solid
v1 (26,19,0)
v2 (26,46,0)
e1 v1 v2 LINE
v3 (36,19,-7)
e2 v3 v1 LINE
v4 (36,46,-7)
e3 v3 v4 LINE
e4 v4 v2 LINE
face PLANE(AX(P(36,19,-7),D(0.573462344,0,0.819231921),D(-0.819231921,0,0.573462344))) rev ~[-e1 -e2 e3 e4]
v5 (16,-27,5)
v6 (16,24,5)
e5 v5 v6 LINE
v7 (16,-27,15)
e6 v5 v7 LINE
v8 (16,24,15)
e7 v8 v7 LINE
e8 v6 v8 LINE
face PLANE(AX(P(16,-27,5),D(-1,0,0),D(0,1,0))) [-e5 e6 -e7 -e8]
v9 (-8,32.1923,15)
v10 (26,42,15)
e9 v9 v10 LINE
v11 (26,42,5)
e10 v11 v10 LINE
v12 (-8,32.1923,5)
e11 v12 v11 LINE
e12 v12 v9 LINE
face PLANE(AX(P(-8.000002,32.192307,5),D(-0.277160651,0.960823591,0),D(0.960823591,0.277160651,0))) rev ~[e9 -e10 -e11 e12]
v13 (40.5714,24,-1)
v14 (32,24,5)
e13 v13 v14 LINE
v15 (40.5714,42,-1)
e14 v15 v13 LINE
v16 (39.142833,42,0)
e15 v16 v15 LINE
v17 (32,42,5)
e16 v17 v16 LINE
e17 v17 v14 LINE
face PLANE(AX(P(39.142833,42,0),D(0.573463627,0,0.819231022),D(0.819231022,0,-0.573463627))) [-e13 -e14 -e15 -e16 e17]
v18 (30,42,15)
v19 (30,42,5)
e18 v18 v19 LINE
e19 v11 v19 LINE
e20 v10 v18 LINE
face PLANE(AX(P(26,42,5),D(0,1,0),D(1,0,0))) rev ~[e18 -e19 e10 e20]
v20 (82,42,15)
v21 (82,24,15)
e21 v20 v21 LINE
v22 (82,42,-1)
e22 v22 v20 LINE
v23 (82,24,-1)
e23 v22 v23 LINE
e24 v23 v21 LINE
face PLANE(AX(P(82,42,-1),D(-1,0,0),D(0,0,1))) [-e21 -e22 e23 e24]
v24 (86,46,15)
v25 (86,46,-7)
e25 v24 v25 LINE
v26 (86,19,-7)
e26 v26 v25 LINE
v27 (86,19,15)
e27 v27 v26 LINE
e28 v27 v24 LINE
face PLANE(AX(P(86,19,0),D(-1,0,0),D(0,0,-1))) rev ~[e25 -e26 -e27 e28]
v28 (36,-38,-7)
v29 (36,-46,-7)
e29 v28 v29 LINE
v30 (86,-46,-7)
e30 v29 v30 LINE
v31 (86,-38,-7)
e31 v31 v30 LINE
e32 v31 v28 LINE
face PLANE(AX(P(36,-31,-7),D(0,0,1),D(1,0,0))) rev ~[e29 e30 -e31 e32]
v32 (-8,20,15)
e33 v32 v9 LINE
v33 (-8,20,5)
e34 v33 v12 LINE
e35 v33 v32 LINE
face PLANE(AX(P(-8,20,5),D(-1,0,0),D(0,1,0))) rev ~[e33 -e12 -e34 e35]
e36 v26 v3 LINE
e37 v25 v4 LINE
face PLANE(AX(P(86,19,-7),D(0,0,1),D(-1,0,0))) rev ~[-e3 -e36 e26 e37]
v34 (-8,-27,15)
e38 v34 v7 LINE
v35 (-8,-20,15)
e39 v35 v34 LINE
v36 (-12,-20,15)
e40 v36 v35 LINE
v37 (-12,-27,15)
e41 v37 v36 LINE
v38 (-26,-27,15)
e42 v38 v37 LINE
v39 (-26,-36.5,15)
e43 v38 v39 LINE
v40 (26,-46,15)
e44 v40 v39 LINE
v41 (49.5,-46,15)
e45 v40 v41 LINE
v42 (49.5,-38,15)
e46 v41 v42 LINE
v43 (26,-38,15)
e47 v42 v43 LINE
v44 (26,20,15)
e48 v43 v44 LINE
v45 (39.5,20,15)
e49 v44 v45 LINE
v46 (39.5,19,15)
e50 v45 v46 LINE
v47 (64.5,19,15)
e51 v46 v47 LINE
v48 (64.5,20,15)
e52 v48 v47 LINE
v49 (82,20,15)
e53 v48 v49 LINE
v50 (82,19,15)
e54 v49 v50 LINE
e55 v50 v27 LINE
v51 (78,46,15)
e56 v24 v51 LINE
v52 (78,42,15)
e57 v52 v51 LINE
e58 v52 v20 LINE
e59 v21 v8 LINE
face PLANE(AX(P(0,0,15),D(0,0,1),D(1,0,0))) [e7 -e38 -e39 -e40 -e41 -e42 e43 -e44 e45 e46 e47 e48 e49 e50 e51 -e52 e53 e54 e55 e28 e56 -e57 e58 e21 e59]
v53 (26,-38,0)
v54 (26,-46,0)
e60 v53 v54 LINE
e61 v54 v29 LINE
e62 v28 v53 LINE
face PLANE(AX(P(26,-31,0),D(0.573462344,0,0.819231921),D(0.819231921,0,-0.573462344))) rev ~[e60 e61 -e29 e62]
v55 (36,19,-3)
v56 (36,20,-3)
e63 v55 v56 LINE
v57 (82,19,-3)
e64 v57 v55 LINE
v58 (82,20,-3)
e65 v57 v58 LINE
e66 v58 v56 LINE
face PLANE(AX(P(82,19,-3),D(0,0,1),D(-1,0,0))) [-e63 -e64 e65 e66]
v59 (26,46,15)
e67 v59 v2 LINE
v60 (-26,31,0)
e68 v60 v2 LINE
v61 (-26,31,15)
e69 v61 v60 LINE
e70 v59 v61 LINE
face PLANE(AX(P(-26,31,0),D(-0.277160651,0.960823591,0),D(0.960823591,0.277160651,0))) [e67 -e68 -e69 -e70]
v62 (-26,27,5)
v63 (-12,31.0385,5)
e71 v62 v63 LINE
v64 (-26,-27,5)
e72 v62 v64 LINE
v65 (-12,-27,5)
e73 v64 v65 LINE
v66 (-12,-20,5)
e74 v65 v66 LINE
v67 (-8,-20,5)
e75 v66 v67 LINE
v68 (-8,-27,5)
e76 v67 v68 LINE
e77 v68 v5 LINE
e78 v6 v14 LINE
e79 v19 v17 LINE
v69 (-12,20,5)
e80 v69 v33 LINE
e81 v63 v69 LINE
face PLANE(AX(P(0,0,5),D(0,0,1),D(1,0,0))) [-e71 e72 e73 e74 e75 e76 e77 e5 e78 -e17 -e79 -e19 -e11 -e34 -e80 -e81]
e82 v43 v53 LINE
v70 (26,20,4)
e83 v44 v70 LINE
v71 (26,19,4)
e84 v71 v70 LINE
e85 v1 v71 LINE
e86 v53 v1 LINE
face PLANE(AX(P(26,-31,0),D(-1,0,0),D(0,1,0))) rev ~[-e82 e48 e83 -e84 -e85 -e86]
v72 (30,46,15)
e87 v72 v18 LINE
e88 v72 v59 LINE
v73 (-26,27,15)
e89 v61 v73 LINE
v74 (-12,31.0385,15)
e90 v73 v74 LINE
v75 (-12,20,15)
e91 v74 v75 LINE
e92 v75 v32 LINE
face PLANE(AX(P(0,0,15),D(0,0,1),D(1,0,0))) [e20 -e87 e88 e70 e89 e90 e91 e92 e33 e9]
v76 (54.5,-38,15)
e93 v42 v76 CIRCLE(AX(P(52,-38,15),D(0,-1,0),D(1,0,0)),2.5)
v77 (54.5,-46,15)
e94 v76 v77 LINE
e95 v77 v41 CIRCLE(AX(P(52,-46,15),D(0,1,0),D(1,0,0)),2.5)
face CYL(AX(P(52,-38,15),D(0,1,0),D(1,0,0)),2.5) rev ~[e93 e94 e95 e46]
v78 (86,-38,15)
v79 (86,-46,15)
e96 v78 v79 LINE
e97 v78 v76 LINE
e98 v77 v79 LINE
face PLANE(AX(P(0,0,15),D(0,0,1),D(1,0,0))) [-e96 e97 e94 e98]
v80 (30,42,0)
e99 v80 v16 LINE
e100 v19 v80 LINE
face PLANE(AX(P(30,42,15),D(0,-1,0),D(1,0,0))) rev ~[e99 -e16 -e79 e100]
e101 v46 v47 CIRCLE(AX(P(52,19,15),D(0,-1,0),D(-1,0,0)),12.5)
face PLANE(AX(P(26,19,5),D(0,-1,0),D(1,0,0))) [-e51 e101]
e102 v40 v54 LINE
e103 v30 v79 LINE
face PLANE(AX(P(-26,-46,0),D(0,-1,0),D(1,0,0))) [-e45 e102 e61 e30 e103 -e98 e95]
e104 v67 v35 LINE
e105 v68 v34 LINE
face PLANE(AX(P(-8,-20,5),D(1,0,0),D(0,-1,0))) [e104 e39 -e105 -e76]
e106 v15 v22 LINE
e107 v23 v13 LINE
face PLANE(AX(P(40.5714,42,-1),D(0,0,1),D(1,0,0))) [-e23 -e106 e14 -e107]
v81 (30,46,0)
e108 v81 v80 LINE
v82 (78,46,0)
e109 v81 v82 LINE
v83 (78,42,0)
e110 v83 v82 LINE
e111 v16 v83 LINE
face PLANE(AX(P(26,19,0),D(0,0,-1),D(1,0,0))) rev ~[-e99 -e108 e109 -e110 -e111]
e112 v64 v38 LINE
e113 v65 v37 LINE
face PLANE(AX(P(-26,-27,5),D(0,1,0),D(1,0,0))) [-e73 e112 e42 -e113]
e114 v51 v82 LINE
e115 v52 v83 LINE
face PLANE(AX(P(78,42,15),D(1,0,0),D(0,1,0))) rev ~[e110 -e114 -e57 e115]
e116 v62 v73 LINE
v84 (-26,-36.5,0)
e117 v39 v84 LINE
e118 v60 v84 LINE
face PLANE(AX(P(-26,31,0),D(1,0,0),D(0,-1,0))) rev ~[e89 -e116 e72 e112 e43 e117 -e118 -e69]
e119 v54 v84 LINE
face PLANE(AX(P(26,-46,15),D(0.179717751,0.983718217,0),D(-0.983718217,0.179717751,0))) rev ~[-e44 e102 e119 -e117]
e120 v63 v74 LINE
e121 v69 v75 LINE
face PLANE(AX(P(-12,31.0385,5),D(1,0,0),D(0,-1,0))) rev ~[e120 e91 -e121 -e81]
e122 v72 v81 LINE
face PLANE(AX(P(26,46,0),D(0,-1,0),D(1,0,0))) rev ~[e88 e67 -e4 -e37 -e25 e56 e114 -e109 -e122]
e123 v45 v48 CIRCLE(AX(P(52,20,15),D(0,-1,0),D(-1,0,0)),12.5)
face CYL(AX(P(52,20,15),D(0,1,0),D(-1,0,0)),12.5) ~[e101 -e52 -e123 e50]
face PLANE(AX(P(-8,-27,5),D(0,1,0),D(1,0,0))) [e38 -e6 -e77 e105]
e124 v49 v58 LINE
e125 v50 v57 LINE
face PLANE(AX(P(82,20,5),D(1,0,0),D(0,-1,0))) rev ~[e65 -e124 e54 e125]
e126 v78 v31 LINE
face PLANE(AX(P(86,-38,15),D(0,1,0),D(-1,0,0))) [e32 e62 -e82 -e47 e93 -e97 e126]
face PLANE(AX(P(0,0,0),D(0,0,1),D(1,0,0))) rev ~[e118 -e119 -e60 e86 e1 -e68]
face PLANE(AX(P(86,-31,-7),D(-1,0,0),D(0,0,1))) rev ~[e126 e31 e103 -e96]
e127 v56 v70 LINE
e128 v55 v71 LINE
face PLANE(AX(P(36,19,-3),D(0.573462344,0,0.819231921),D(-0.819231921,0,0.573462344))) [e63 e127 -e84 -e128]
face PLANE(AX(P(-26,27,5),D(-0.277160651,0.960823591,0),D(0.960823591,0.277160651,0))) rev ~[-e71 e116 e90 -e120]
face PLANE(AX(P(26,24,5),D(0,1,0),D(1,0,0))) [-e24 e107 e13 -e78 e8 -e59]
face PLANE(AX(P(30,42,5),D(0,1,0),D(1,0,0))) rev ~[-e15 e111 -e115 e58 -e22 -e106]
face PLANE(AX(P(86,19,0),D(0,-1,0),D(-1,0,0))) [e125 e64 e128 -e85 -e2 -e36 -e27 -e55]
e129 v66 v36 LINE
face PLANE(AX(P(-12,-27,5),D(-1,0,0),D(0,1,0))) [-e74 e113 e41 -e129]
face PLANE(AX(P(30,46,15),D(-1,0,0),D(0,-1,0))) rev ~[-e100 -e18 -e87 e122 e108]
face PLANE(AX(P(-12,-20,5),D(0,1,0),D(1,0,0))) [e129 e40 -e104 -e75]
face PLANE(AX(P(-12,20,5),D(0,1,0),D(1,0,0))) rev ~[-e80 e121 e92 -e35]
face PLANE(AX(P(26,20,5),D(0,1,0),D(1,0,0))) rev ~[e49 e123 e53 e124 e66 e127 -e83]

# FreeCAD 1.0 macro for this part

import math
import FreeCAD as App
import Part
import Sketcher

V = App.Vector
Q = App.Units.Quantity


def add_polygon(sketch, points):
    """Adds a closed chain of lines whose ends are joined by coincident constraints."""
    first, n = sketch.GeometryCount, len(points)
    for a, b in zip(points, points[1:] + points[:1]):
        sketch.addGeometry(Part.LineSegment(App.Vector(*a, 0), App.Vector(*b, 0)), False)
    for i in range(n):
        sketch.addConstraint(Sketcher.Constraint("Coincident", first + i, 2, first + (i + 1) % n, 1))

doc = App.newDocument("Part")
params = doc.addObject("Spreadsheet::Sheet", "Params")
for row, (alias, value) in enumerate([
    ("sketch1_width", "52 mm"),
    ("sketch1_width2", "60 mm"),
    ("sketch1_height", "62 mm"),
    ("sketch1_height2", "50 mm"),
    ("pad1_length", "5 mm"),
    ("sketch2_width", "4 mm"),
    ("sketch2_height", "7 mm"),
    ("sketch2_height2", "1 mm"),
    ("sketch2_width2", "56 mm"),
    ("sketch2_width3", "24 mm"),
    ("pad2_length", "10 mm"),
    ("sketch3_height", "4 mm"),
    ("sketch3_width", "48 mm"),
    ("sketch4_width", "50 mm"),
    ("sketch4_height", "7 mm"),
    ("sketch4_width2", "60 mm"),
    ("pad3_length", "27 mm"),
    ("sketch5_width", "56 mm"),
    ("sketch5_width2", "46 mm"),
    ("sketch5_height", "1 mm"),
    ("sketch5_height2", "8 mm"),
    ("pocket2_length", "1 mm"),
    ("sketch6_radius", "12.5 mm"),
    ("pad4_length", "1 mm"),
    ("sketch7_width", "50 mm"),
    ("sketch7_height", "6 mm"),
    ("pocket3_length", "18 mm"),
    ("sketch8_width", "112 mm"),
    ("sketch8_width2", "52 mm"),
    ("sketch8_width3", "50 mm"),
    ("sketch8_height", "15 mm"),
    ("sketch8_height2", "22 mm"),
    ("pad5_length", "15 mm"),
    ("sketch9_height", "7 mm"),
    ("sketch9_width", "60 mm"),
    ("sketch10_height", "9.5 mm"),
    ("sketch10_width", "52 mm"),
    ("sketch11_diameter", "5 mm"),
], start=1):
    params.set(f"A{row}", alias)
    params.set(f"B{row}", "=" + value)
    params.setAlias(f"B{row}", alias)

body = doc.addObject("PartDesign::Body", "Body")

# Sketch on XY plane
sketch1 = doc.addObject("Sketcher::SketchObject", "Sketch")
body.addObject(sketch1)
sketch1.AttachmentSupport = (doc.XY_Plane, [""])
sketch1.MapMode = "FlatFace"
add_polygon(sketch1, [(-26, 31), (-26, -31), (26, -31), (26, 19), (86, 19), (86, 46), (26, 46)])  # lines 0-6
sketch1.addConstraint(Sketcher.Constraint("Vertical", 0))
sketch1.addConstraint(Sketcher.Constraint("Horizontal", 1))
sketch1.addConstraint(Sketcher.Constraint("Vertical", 2))
sketch1.addConstraint(Sketcher.Constraint("Horizontal", 3))
sketch1.addConstraint(Sketcher.Constraint("Vertical", 4))
sketch1.addConstraint(Sketcher.Constraint("Horizontal", 5))
sketch1.addConstraint(Sketcher.Constraint("Symmetric", 1, 2, 6, 2, -1, 1))
sketch1.addConstraint(Sketcher.Constraint("Vertical", 2, 2, 5, 2))
sketch1.addConstraint(Sketcher.Constraint("DistanceX", 1, 1, 1, 2, Q("52 mm")))
sketch1.addConstraint(Sketcher.Constraint("DistanceX", 3, 1, 3, 2, Q("60 mm")))
sketch1.addConstraint(Sketcher.Constraint("DistanceY", 0, 2, 0, 1, Q("62 mm")))
sketch1.addConstraint(Sketcher.Constraint("DistanceY", 2, 1, 2, 2, Q("50 mm")))
sketch1.addConstraint(Sketcher.Constraint("DistanceY", 6, 2, 5, 2, Q("15 mm")))
sketch1.setExpression("Constraints[15]", "Params.sketch1_width")
sketch1.setExpression("Constraints[16]", "Params.sketch1_width2")
sketch1.setExpression("Constraints[17]", "Params.sketch1_height")
sketch1.setExpression("Constraints[18]", "Params.sketch1_height2")
pad1 = doc.addObject("PartDesign::Pad", "Pad")
body.addObject(pad1)
pad1.Profile = sketch1
pad1.setExpression("Length", "Params.pad1_length")

# Sketch on XY plane
sketch2 = doc.addObject("Sketcher::SketchObject", "Sketch001")
body.addObject(sketch2)
sketch2.AttachmentSupport = (doc.XY_Plane, [""])
sketch2.MapMode = "FlatFace"
sketch2.AttachmentOffset = App.Placement(V(0, 0, 5), App.Rotation())
add_polygon(sketch2, [(-8.000002, 32.192307), (26, 42), (82, 42), (82, 24), (16, 24), (16, -27), (-8, -27), (-8, -20), (-12, -20), (-12, -27), (-26, -27), (-26, -31), (26, -31), (26, 20), (82, 20), (82, 19), (86, 19), (86, 46), (26, 46), (-26, 31), (-26, 27), (-12, 31.0385), (-12, 20), (-8, 20)])  # lines 0-23
sketch2.addConstraint(Sketcher.Constraint("Horizontal", 1))
sketch2.addConstraint(Sketcher.Constraint("Vertical", 2))
sketch2.addConstraint(Sketcher.Constraint("Horizontal", 3))
sketch2.addConstraint(Sketcher.Constraint("Vertical", 4))
sketch2.addConstraint(Sketcher.Constraint("Horizontal", 5))
sketch2.addConstraint(Sketcher.Constraint("Vertical", 6))
sketch2.addConstraint(Sketcher.Constraint("Horizontal", 7))
sketch2.addConstraint(Sketcher.Constraint("Vertical", 8))
sketch2.addConstraint(Sketcher.Constraint("Horizontal", 9))
sketch2.addConstraint(Sketcher.Constraint("Vertical", 10))
sketch2.addConstraint(Sketcher.Constraint("Horizontal", 11))
sketch2.addConstraint(Sketcher.Constraint("Vertical", 12))
sketch2.addConstraint(Sketcher.Constraint("Horizontal", 13))
sketch2.addConstraint(Sketcher.Constraint("Vertical", 14))
sketch2.addConstraint(Sketcher.Constraint("Horizontal", 15))
sketch2.addConstraint(Sketcher.Constraint("Vertical", 16))
sketch2.addConstraint(Sketcher.Constraint("Horizontal", 17))
sketch2.addConstraint(Sketcher.Constraint("Vertical", 19))
sketch2.addConstraint(Sketcher.Constraint("Vertical", 21))
sketch2.addConstraint(Sketcher.Constraint("Horizontal", 22))
sketch2.addConstraint(Sketcher.Constraint("Vertical", 23))
sketch2.addConstraint(Sketcher.Constraint("Symmetric", 11, 2, 18, 2, -1, 1))
sketch2.addConstraint(Sketcher.Constraint("Symmetric", 9, 2, 19, 2, -1))
sketch2.addConstraint(Sketcher.Constraint("Symmetric", 7, 2, 21, 2, -1))
sketch2.addConstraint(Sketcher.Constraint("Parallel", 0, 18))
sketch2.addConstraint(Sketcher.Constraint("Parallel", 18, 20))
sketch2.addConstraint(Sketcher.Constraint("Horizontal", 5, 2, 8, 2))
sketch2.addConstraint(Sketcher.Constraint("Horizontal", 13, 2, 21, 2))
sketch2.addConstraint(Sketcher.Constraint("Vertical", 0, 2, 11, 2))
sketch2.addConstraint(Sketcher.Constraint("Vertical", 2, 2, 13, 2))
sketch2.addConstraint(Sketcher.Constraint("Vertical", 12, 2, 17, 2))
sketch2.addConstraint(Sketcher.Constraint("Vertical", 6, 2, 22, 2))
sketch2.addConstraint(Sketcher.Constraint("Equal", 7, 15))
sketch2.addConstraint(Sketcher.Constraint("Equal", 22, 10))
sketch2.addConstraint(Sketcher.Constraint("Equal", 4, 12))
sketch2.addConstraint(Sketcher.Constraint("DistanceX", 7, 2, 7, 1, Q("4 mm")))
sketch2.addConstraint(Sketcher.Constraint("DistanceY", 6, 1, 6, 2, Q("7 mm")))
sketch2.addConstraint(Sketcher.Constraint("DistanceY", 14, 2, 14, 1, Q("1 mm")))
sketch2.addConstraint(Sketcher.Constraint("DistanceX", 3, 2, 0, 2, Q("10 mm")))
sketch2.addConstraint(Sketcher.Constraint("DistanceY", 6, 2, 12, 2, Q("40 mm")))
sketch2.addConstraint(Sketcher.Constraint("DistanceY", 1, 2, 16, 2, Q("4 mm")))
sketch2.addConstraint(Sketcher.Constraint("DistanceX", 1, 1, 1, 2, Q("56 mm")))
sketch2.addConstraint(Sketcher.Constraint("DistanceX", 5, 2, 5, 1, Q("24 mm")))
sketch2.addConstraint(Sketcher.Constraint("DistanceX", 9, 2, 9, 1, Q("14 mm")))
sketch2.addConstraint(Sketcher.Constraint("DistanceY", 2, 2, 2, 1, Q("18 mm")))
sketch2.setExpression("Constraints[59]", "Params.sketch2_width")
sketch2.setExpression("Constraints[60]", "Params.sketch2_height")
sketch2.setExpression("Constraints[61]", "Params.sketch2_height2")
sketch2.setExpression("Constraints[65]", "Params.sketch2_width2")
sketch2.setExpression("Constraints[66]", "Params.sketch2_width3")
pad2 = doc.addObject("PartDesign::Pad", "Pad001")
body.addObject(pad2)
pad2.Profile = sketch2
pad2.setExpression("Length", "Params.pad2_length")

# Sketch on XY plane
sketch3 = doc.addObject("Sketcher::SketchObject", "Sketch002")
body.addObject(sketch3)
sketch3.AttachmentSupport = (doc.XY_Plane, [""])
sketch3.MapMode = "FlatFace"
sketch3.AttachmentOffset = App.Placement(V(0, 0, 15), App.Rotation())
add_polygon(sketch3, [(78, 46), (30, 46), (30, 42), (78, 42)])  # lines 0-3
sketch3.addConstraint(Sketcher.Constraint("Horizontal", 0))
sketch3.addConstraint(Sketcher.Constraint("Vertical", 1))
sketch3.addConstraint(Sketcher.Constraint("Horizontal", 2))
sketch3.addConstraint(Sketcher.Constraint("Vertical", 3))
sketch3.addConstraint(Sketcher.Constraint("DistanceY", 1, 2, 1, 1, Q("4 mm")))
sketch3.addConstraint(Sketcher.Constraint("DistanceX", 0, 2, 0, 1, Q("48 mm")))
sketch3.addConstraint(Sketcher.Constraint("DistanceX", -1, 1, 0, 2, Q("30 mm")))
sketch3.addConstraint(Sketcher.Constraint("DistanceY", -1, 1, 0, 2, Q("46 mm")))
sketch3.setExpression("Constraints[8]", "Params.sketch3_height")
sketch3.setExpression("Constraints[9]", "Params.sketch3_width")
pocket1 = doc.addObject("PartDesign::Pocket", "Pocket")
body.addObject(pocket1)
pocket1.Profile = sketch3
pocket1.Type = "ThroughAll"

# Sketch on XZ plane
sketch4 = doc.addObject("Sketcher::SketchObject", "Sketch003")
body.addObject(sketch4)
sketch4.AttachmentSupport = (doc.XZ_Plane, [""])
sketch4.MapMode = "FlatFace"
sketch4.AttachmentOffset = App.Placement(V(0, 0, -19), App.Rotation())
add_polygon(sketch4, [(86, 0), (26, 0), (36, -7), (86, -7)])  # lines 0-3
sketch4.addConstraint(Sketcher.Constraint("Horizontal", 0))
sketch4.addConstraint(Sketcher.Constraint("Horizontal", 2))
sketch4.addConstraint(Sketcher.Constraint("Vertical", 3))
sketch4.addConstraint(Sketcher.Constraint("PointOnObject", 0, 2, -1))
sketch4.addConstraint(Sketcher.Constraint("DistanceX", 2, 1, 2, 2, Q("50 mm")))
sketch4.addConstraint(Sketcher.Constraint("DistanceY", 3, 1, 3, 2, Q("7 mm")))
sketch4.addConstraint(Sketcher.Constraint("DistanceX", 0, 2, 0, 1, Q("60 mm")))
sketch4.addConstraint(Sketcher.Constraint("DistanceX", -1, 1, 0, 2, Q("26 mm")))
sketch4.setExpression("Constraints[8]", "Params.sketch4_width")
sketch4.setExpression("Constraints[9]", "Params.sketch4_height")
sketch4.setExpression("Constraints[10]", "Params.sketch4_width2")
pad3 = doc.addObject("PartDesign::Pad", "Pad002")
body.addObject(pad3)
pad3.Profile = sketch4
pad3.setExpression("Length", "Params.pad3_length")
pad3.Reversed = True

# Sketch on XZ plane
sketch5 = doc.addObject("Sketcher::SketchObject", "Sketch004")
body.addObject(sketch5)
sketch5.AttachmentSupport = (doc.XZ_Plane, [""])
sketch5.MapMode = "FlatFace"
sketch5.AttachmentOffset = App.Placement(V(0, 0, -19), App.Rotation())
add_polygon(sketch5, [(82, 5), (26, 5), (26, 4), (36, -3), (82, -3)])  # lines 0-4
sketch5.addConstraint(Sketcher.Constraint("Horizontal", 0))
sketch5.addConstraint(Sketcher.Constraint("Vertical", 1))
sketch5.addConstraint(Sketcher.Constraint("Horizontal", 3))
sketch5.addConstraint(Sketcher.Constraint("Vertical", 4))
sketch5.addConstraint(Sketcher.Constraint("DistanceY", -1, 1, 1, 2, Q("4 mm")))
sketch5.addConstraint(Sketcher.Constraint("DistanceX", 0, 2, 0, 1, Q("56 mm")))
sketch5.addConstraint(Sketcher.Constraint("DistanceX", 3, 1, 3, 2, Q("46 mm")))
sketch5.addConstraint(Sketcher.Constraint("DistanceY", 1, 2, 1, 1, Q("1 mm")))
sketch5.addConstraint(Sketcher.Constraint("DistanceY", 4, 1, 4, 2, Q("8 mm")))
sketch5.addConstraint(Sketcher.Constraint("DistanceX", -1, 1, 0, 2, Q("26 mm")))
sketch5.setExpression("Constraints[10]", "Params.sketch5_width")
sketch5.setExpression("Constraints[11]", "Params.sketch5_width2")
sketch5.setExpression("Constraints[12]", "Params.sketch5_height")
sketch5.setExpression("Constraints[13]", "Params.sketch5_height2")
pocket2 = doc.addObject("PartDesign::Pocket", "Pocket001")
body.addObject(pocket2)
pocket2.Profile = sketch5
pocket2.setExpression("Length", "Params.pocket2_length")

# Sketch on XZ plane
sketch6 = doc.addObject("Sketcher::SketchObject", "Sketch005")
body.addObject(sketch6)
sketch6.AttachmentSupport = (doc.XZ_Plane, [""])
sketch6.MapMode = "FlatFace"
sketch6.AttachmentOffset = App.Placement(V(0, 0, -20), App.Rotation())
sketch6.addGeometry(Part.LineSegment(V(64.5, 15, 0), V(39.5, 15, 0)), False)
sketch6.addGeometry(Part.ArcOfCircle(Part.Circle(V(52, 15, 0), V(0, 0, 1), 12.5), math.radians(180), math.radians(360)), False)
sketch6.addConstraint(Sketcher.Constraint("Coincident", 0, 1, 1, 2))
sketch6.addConstraint(Sketcher.Constraint("Coincident", 1, 1, 0, 2))
sketch6.addConstraint(Sketcher.Constraint("Horizontal", 0))
sketch6.addConstraint(Sketcher.Constraint("Horizontal", 1, 3, 0, 1))
sketch6.addConstraint(Sketcher.Constraint("Radius", 1, Q("12.5 mm")))
sketch6.addConstraint(Sketcher.Constraint("DistanceX", -1, 1, 1, 3, Q("52 mm")))
sketch6.addConstraint(Sketcher.Constraint("DistanceY", -1, 1, 1, 3, Q("15 mm")))
sketch6.setExpression("Constraints[4]", "Params.sketch6_radius")
pad4 = doc.addObject("PartDesign::Pad", "Pad003")
body.addObject(pad4)
pad4.Profile = sketch6
pad4.setExpression("Length", "Params.pad4_length")

# Sketch on XZ plane
sketch7 = doc.addObject("Sketcher::SketchObject", "Sketch006")
body.addObject(sketch7)
sketch7.AttachmentSupport = (doc.XZ_Plane, [""])
sketch7.MapMode = "FlatFace"
sketch7.AttachmentOffset = App.Placement(V(0, 0, -42), App.Rotation())
add_polygon(sketch7, [(40.5714, -1), (32, 5), (82, 5), (82, -1)])  # lines 0-3
sketch7.addConstraint(Sketcher.Constraint("Horizontal", 1))
sketch7.addConstraint(Sketcher.Constraint("Vertical", 2))
sketch7.addConstraint(Sketcher.Constraint("Horizontal", 3))
sketch7.addConstraint(Sketcher.Constraint("DistanceX", 1, 1, 1, 2, Q("50 mm")))
sketch7.addConstraint(Sketcher.Constraint("DistanceY", 2, 2, 2, 1, Q("6 mm")))
sketch7.addConstraint(Sketcher.Constraint("DistanceX", -1, 1, 0, 2, Q("32 mm")))
sketch7.addConstraint(Sketcher.Constraint("DistanceY", -1, 1, 0, 2, Q("5 mm")))
sketch7.addConstraint(Sketcher.Constraint("DistanceX", 3, 2, 3, 1, Q("41.4286 mm")))
sketch7.setExpression("Constraints[7]", "Params.sketch7_width")
sketch7.setExpression("Constraints[8]", "Params.sketch7_height")
pocket3 = doc.addObject("PartDesign::Pocket", "Pocket002")
body.addObject(pocket3)
pocket3.Profile = sketch7
pocket3.setExpression("Length", "Params.pocket3_length")
pocket3.Reversed = True

# Sketch on XZ plane
sketch8 = doc.addObject("Sketcher::SketchObject", "Sketch007")
body.addObject(sketch8)
sketch8.AttachmentSupport = (doc.XZ_Plane, [""])
sketch8.MapMode = "FlatFace"
sketch8.AttachmentOffset = App.Placement(V(0, 0, 31), App.Rotation())
add_polygon(sketch8, [(86, 15), (-26, 15), (-26, 0), (26, 0), (36, -7), (86, -7)])  # lines 0-5
sketch8.addConstraint(Sketcher.Constraint("Horizontal", 0))
sketch8.addConstraint(Sketcher.Constraint("Vertical", 1))
sketch8.addConstraint(Sketcher.Constraint("Horizontal", 2))
sketch8.addConstraint(Sketcher.Constraint("Horizontal", 4))
sketch8.addConstraint(Sketcher.Constraint("Vertical", 5))
sketch8.addConstraint(Sketcher.Constraint("Symmetric", 1, 2, 2, 2, -1, 1))
sketch8.addConstraint(Sketcher.Constraint("DistanceX", 0, 2, 0, 1, Q("112 mm")))
sketch8.addConstraint(Sketcher.Constraint("DistanceX", 2, 1, 2, 2, Q("52 mm")))
sketch8.addConstraint(Sketcher.Constraint("DistanceX", 4, 1, 4, 2, Q("50 mm")))
sketch8.addConstraint(Sketcher.Constraint("DistanceY", 1, 2, 1, 1, Q("15 mm")))
sketch8.addConstraint(Sketcher.Constraint("DistanceY", 5, 1, 5, 2, Q("22 mm")))
sketch8.setExpression("Constraints[12]", "Params.sketch8_width")
sketch8.setExpression("Constraints[13]", "Params.sketch8_width2")
sketch8.setExpression("Constraints[14]", "Params.sketch8_width3")
sketch8.setExpression("Constraints[15]", "Params.sketch8_height")
sketch8.setExpression("Constraints[16]", "Params.sketch8_height2")
pad5 = doc.addObject("PartDesign::Pad", "Pad004")
body.addObject(pad5)
pad5.Profile = sketch8
pad5.setExpression("Length", "Params.pad5_length")

# Sketch on XY plane
sketch9 = doc.addObject("Sketcher::SketchObject", "Sketch008")
body.addObject(sketch9)
sketch9.AttachmentSupport = (doc.XY_Plane, [""])
sketch9.MapMode = "FlatFace"
sketch9.AttachmentOffset = App.Placement(V(0, 0, 15), App.Rotation())
add_polygon(sketch9, [(86, -31), (26, -31), (26, -38), (86, -38)])  # lines 0-3
sketch9.addConstraint(Sketcher.Constraint("Horizontal", 0))
sketch9.addConstraint(Sketcher.Constraint("Vertical", 1))
sketch9.addConstraint(Sketcher.Constraint("Horizontal", 2))
sketch9.addConstraint(Sketcher.Constraint("Vertical", 3))
sketch9.addConstraint(Sketcher.Constraint("DistanceY", 1, 2, 1, 1, Q("7 mm")))
sketch9.addConstraint(Sketcher.Constraint("DistanceX", 0, 2, 0, 1, Q("60 mm")))
sketch9.addConstraint(Sketcher.Constraint("DistanceX", -1, 1, 0, 2, Q("26 mm")))
sketch9.addConstraint(Sketcher.Constraint("DistanceY", 0, 2, -1, 1, Q("31 mm")))
sketch9.setExpression("Constraints[8]", "Params.sketch9_height")
sketch9.setExpression("Constraints[9]", "Params.sketch9_width")
pocket4 = doc.addObject("PartDesign::Pocket", "Pocket003")
body.addObject(pocket4)
pocket4.Profile = sketch9
pocket4.Type = "ThroughAll"

# Sketch on XY plane
sketch10 = doc.addObject("Sketcher::SketchObject", "Sketch009")
body.addObject(sketch10)
sketch10.AttachmentSupport = (doc.XY_Plane, [""])
sketch10.MapMode = "FlatFace"
sketch10.AttachmentOffset = App.Placement(V(0, 0, 15), App.Rotation())
add_polygon(sketch10, [(-26, -36.5), (-26, -46), (26, -46)])  # lines 0-2
sketch10.addConstraint(Sketcher.Constraint("Vertical", 0))
sketch10.addConstraint(Sketcher.Constraint("Horizontal", 1))
sketch10.addConstraint(Sketcher.Constraint("DistanceY", 0, 2, 0, 1, Q("9.5 mm")))
sketch10.addConstraint(Sketcher.Constraint("DistanceX", 1, 1, 1, 2, Q("52 mm")))
sketch10.addConstraint(Sketcher.Constraint("DistanceX", 0, 2, -1, 1, Q("26 mm")))
sketch10.addConstraint(Sketcher.Constraint("DistanceY", 0, 2, -1, 1, Q("46 mm")))
sketch10.setExpression("Constraints[5]", "Params.sketch10_height")
sketch10.setExpression("Constraints[6]", "Params.sketch10_width")
pocket5 = doc.addObject("PartDesign::Pocket", "Pocket004")
body.addObject(pocket5)
pocket5.Profile = sketch10
pocket5.Type = "ThroughAll"

# Sketch on XZ plane
sketch11 = doc.addObject("Sketcher::SketchObject", "Sketch010")
body.addObject(sketch11)
sketch11.AttachmentSupport = (doc.XZ_Plane, [""])
sketch11.MapMode = "FlatFace"
sketch11.AttachmentOffset = App.Placement(V(0, 0, 38), App.Rotation())
sketch11.addGeometry(Part.Circle(V(52, 15, 0), V(0, 0, 1), 2.5), False)
sketch11.addConstraint(Sketcher.Constraint("Diameter", 0, Q("5 mm")))
sketch11.addConstraint(Sketcher.Constraint("DistanceX", -1, 1, 0, 3, Q("52 mm")))
sketch11.addConstraint(Sketcher.Constraint("DistanceY", -1, 1, 0, 3, Q("15 mm")))
sketch11.setExpression("Constraints[0]", "Params.sketch11_diameter")
pocket6 = doc.addObject("PartDesign::Pocket", "Pocket005")
body.addObject(pocket6)
pocket6.Profile = sketch11
pocket6.Type = "ThroughAll"
pocket6.Reversed = True

doc.recompute()
